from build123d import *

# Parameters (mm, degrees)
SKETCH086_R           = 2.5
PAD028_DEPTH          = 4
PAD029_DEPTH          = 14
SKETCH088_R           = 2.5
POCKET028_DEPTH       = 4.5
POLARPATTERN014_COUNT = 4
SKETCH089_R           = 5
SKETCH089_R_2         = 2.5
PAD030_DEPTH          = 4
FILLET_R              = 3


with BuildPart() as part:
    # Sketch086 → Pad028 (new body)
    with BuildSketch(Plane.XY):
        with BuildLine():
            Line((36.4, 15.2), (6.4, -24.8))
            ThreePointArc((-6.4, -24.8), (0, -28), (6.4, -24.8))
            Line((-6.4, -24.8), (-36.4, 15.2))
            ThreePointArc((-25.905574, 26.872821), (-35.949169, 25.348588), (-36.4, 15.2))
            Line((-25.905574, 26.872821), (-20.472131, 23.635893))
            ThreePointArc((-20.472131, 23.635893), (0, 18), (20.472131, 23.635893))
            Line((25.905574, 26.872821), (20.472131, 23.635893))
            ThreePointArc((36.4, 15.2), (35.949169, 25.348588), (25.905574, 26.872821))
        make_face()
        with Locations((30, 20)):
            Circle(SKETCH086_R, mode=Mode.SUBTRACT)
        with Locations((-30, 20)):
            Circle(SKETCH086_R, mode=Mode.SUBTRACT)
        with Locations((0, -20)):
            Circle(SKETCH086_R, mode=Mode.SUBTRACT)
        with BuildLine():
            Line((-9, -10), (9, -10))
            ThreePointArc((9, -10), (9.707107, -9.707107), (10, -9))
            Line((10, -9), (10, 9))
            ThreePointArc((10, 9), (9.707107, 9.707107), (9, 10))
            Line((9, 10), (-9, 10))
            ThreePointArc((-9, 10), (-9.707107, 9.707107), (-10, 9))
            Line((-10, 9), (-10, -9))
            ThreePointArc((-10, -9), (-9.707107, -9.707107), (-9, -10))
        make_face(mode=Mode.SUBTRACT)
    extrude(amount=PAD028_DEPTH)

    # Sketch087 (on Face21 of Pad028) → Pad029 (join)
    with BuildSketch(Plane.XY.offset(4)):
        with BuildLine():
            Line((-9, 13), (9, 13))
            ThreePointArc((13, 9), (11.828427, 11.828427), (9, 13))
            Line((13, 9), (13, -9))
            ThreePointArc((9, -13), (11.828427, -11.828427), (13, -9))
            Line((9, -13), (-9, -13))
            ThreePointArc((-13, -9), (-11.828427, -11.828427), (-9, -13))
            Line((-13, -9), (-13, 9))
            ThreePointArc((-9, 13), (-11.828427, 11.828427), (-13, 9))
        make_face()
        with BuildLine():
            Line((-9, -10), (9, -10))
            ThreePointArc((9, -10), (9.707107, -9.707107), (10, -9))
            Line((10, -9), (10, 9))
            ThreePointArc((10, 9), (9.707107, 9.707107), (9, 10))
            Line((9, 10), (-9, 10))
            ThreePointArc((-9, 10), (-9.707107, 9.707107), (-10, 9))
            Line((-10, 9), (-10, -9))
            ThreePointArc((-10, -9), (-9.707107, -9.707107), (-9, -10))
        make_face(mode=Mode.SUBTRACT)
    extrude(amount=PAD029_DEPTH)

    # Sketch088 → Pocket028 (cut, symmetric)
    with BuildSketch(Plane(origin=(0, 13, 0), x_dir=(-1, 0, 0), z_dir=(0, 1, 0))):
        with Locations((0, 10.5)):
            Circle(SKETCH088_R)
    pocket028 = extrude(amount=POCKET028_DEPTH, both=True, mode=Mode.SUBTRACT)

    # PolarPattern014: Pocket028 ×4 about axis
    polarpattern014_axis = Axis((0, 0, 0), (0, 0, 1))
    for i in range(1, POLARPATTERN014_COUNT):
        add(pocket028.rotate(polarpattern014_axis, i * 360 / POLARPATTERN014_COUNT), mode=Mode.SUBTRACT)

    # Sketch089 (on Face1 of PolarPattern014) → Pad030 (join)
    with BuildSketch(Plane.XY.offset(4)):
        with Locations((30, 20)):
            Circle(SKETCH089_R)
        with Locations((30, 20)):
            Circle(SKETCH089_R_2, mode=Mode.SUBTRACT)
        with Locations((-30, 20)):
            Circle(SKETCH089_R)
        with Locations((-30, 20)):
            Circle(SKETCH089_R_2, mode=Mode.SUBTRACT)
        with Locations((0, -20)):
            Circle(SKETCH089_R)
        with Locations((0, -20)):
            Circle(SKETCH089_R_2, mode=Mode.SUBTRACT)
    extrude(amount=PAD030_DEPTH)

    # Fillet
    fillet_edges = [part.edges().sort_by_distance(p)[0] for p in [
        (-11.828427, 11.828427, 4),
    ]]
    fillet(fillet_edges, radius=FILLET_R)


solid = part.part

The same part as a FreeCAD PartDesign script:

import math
import FreeCAD as App
import Part
import Sketcher
Q = App.Units.Quantity


def edges_at(feature, points):
    """Names of the edges that pass closest to the given points."""
    edges = feature.Shape.Edges
    near = lambda p: min(range(len(edges)), key=lambda i: edges[i].distToShape(Part.Vertex(*p))[0])
    return sorted({f"Edge{near(p) + 1}" for p in points})

doc = App.newDocument("Part")
body = doc.addObject("PartDesign::Body", "Body")

# Sketch on XY plane
sketch1 = body.newObject("Sketcher::SketchObject", "Sketch")
sketch1.AttachmentSupport = (doc.getObject("XY_Plane"), [""])
sketch1.MapMode = "FlatFace"
sketch1.addGeometry([
    Part.LineSegment(App.Vector(6.4, -24.8, 0), App.Vector(36.4, 15.2, 0)),  # 0
    Part.ArcOfCircle(Part.Circle(App.Vector(30.000001, 20, 0), App.Vector(0, 0, 1), 8), math.radians(-36.869902), math.radians(120.784025)),  # 1
    Part.LineSegment(App.Vector(25.905574, 26.872821, 0), App.Vector(20.472131, 23.635893, 0)),  # 2
    Part.ArcOfCircle(Part.Circle(App.Vector(0, 58, 0), App.Vector(0, 0, 1), 40), math.radians(-120.78402), math.radians(-59.21598)),  # 3
    Part.LineSegment(App.Vector(-20.472131, 23.635893, 0), App.Vector(-25.905574, 26.872821, 0)),  # 4
    Part.ArcOfCircle(Part.Circle(App.Vector(-30.000001, 20, 0), App.Vector(0, 0, 1), 8), math.radians(59.215975), math.radians(216.869902)),  # 5
    Part.LineSegment(App.Vector(-36.4, 15.2, 0), App.Vector(-6.4, -24.8, 0)),  # 6
    Part.ArcOfCircle(Part.Circle(App.Vector(0, -20, 0), App.Vector(0, 0, 1), 8), math.radians(-143.130102), math.radians(-36.869898)),  # 7
    Part.Circle(App.Vector(0, -20, 0), App.Vector(0, 0, 1), 2.5),  # 8
    Part.Circle(App.Vector(30, 20, 0), App.Vector(0, 0, 1), 2.5),  # 9
    Part.ArcOfCircle(Part.Circle(App.Vector(-9.000001, -9.000001, 0), App.Vector(0, 0, 1), 0.999999), math.radians(179.999957), math.radians(270.000043)),  # 10
    Part.LineSegment(App.Vector(-10, -9, 0), App.Vector(-10, 9, 0)),  # 11
    Part.ArcOfCircle(Part.Circle(App.Vector(-9.000001, 9.000001, 0), App.Vector(0, 0, 1), 0.999999), math.radians(89.999957), math.radians(180.000043)),  # 12
    Part.LineSegment(App.Vector(-9, 10, 0), App.Vector(9, 10, 0)),  # 13
    Part.ArcOfCircle(Part.Circle(App.Vector(9.000001, 9.000001, 0), App.Vector(0, 0, 1), 0.999999), math.radians(-0.000043), math.radians(90.000043)),  # 14
    Part.LineSegment(App.Vector(10, 9, 0), App.Vector(10, -9, 0)),  # 15
    Part.ArcOfCircle(Part.Circle(App.Vector(9.000001, -9.000001, 0), App.Vector(0, 0, 1), 0.999999), math.radians(-90.000043), math.radians(0.000043)),  # 16
    Part.LineSegment(App.Vector(9, -10, 0), App.Vector(-9, -10, 0)),  # 17
    Part.Circle(App.Vector(-30, 20, 0), App.Vector(0, 0, 1), 2.5),  # 18
], False)
sketch1.addConstraint([
    Sketcher.Constraint("Tangent", 0, 2, 1, 1),
    Sketcher.Constraint("Tangent", 1, 2, 2, 1),
    Sketcher.Constraint("Tangent", 2, 2, 3, 2),
    Sketcher.Constraint("Tangent", 3, 1, 4, 1),
    Sketcher.Constraint("Tangent", 4, 2, 5, 1),
    Sketcher.Constraint("Tangent", 5, 2, 6, 1),
    Sketcher.Constraint("Tangent", 6, 2, 7, 1),
    Sketcher.Constraint("Tangent", 7, 2, 0, 1),
    Sketcher.Constraint("Tangent", 10, 1, 11, 1),
    Sketcher.Constraint("Tangent", 11, 2, 12, 2),
    Sketcher.Constraint("Tangent", 12, 1, 13, 1),
    Sketcher.Constraint("Tangent", 13, 2, 14, 2),
    Sketcher.Constraint("Tangent", 14, 1, 15, 1),
    Sketcher.Constraint("Tangent", 15, 2, 16, 2),
    Sketcher.Constraint("Tangent", 16, 1, 17, 1),
    Sketcher.Constraint("Tangent", 17, 2, 10, 2),
    Sketcher.Constraint("Vertical", 11),
    Sketcher.Constraint("Horizontal", 13),
    Sketcher.Constraint("Vertical", 15),
    Sketcher.Constraint("Horizontal", 17),
    Sketcher.Constraint("Coincident", 8, 3, 7, 3),
    Sketcher.Constraint("Coincident", 9, 3, 1, 3),
    Sketcher.Constraint("Coincident", 18, 3, 5, 3),
    Sketcher.Constraint("Equal", 1, 5),
    Sketcher.Constraint("Equal", 5, 7),
    Sketcher.Constraint("Equal", 8, 9),
    Sketcher.Constraint("Equal", 10, 12),
    Sketcher.Constraint("Equal", 12, 14),
    Sketcher.Constraint("Equal", 14, 16),
    Sketcher.Constraint("Equal", 9, 18),
    Sketcher.Constraint("Symmetric", 10, 3, 14, 3, -1, 1),
    Sketcher.Constraint("Symmetric", 1, 3, 5, 3, -2),
    Sketcher.Constraint("PointOnObject", 3, 3, -2),
    Sketcher.Constraint("PointOnObject", 7, 3, -2),
    Sketcher.Constraint("Equal", 17, 11),
    Sketcher.Constraint("Diameter", 8, Q("5 mm")),
    Sketcher.Constraint("Radius", 1, Q("8 mm")),
    Sketcher.Constraint("Radius", 3, Q("40 mm")),
    Sketcher.Constraint("Radius", 10, Q("0.999999 mm")),
    Sketcher.Constraint("DistanceX", 13, 1, 13, 2, Q("18 mm")),
    Sketcher.Constraint("Distance", 0, Q("50 mm")),
    Sketcher.Constraint("DistanceX", -1, 1, 1, 3, Q("30.000001 mm")),
    Sketcher.Constraint("DistanceY", -1, 1, 1, 3, Q("20 mm")),
    Sketcher.Constraint("DistanceY", -1, 1, 3, 3, Q("58 mm")),
])
pad1 = body.newObject("PartDesign::Pad", "Pad")
pad1.Profile = sketch1
pad1.Length = 4

# Sketch on XY plane
sketch2 = body.newObject("Sketcher::SketchObject", "Sketch001")
sketch2.AttachmentSupport = (doc.getObject("XY_Plane"), [""])
sketch2.MapMode = "FlatFace"
sketch2.AttachmentOffset = App.Placement(App.Vector(0, 0, 4), App.Rotation())
sketch2.addGeometry([
    Part.LineSegment(App.Vector(9, 13, 0), App.Vector(-9, 13, 0)),  # 0
    Part.ArcOfCircle(Part.Circle(App.Vector(-9, 9, 0), App.Vector(0, 0, 1), 4), math.radians(90.000006), math.radians(179.999994)),  # 1
    Part.LineSegment(App.Vector(-13, 9, 0), App.Vector(-13, -9, 0)),  # 2
    Part.ArcOfCircle(Part.Circle(App.Vector(-9, -9, 0), App.Vector(0, 0, 1), 4), math.radians(-179.999994), math.radians(-90.000006)),  # 3
    Part.LineSegment(App.Vector(-9, -13, 0), App.Vector(9, -13, 0)),  # 4
    Part.ArcOfCircle(Part.Circle(App.Vector(9, -9, 0), App.Vector(0, 0, 1), 4), math.radians(-89.999994), math.radians(-0.000006)),  # 5
    Part.LineSegment(App.Vector(13, -9, 0), App.Vector(13, 9, 0)),  # 6
    Part.ArcOfCircle(Part.Circle(App.Vector(9, 9, 0), App.Vector(0, 0, 1), 4), math.radians(0.000006), math.radians(89.999994)),  # 7
    Part.ArcOfCircle(Part.Circle(App.Vector(-9.000001, -9.000001, 0), App.Vector(0, 0, 1), 0.999999), math.radians(179.999957), math.radians(270.000043)),  # 8
    Part.LineSegment(App.Vector(-10, -9, 0), App.Vector(-10, 9, 0)),  # 9
    Part.ArcOfCircle(Part.Circle(App.Vector(-9.000001, 9.000001, 0), App.Vector(0, 0, 1), 0.999999), math.radians(89.999957), math.radians(180.000043)),  # 10
    Part.LineSegment(App.Vector(-9, 10, 0), App.Vector(9, 10, 0)),  # 11
    Part.ArcOfCircle(Part.Circle(App.Vector(9.000001, 9.000001, 0), App.Vector(0, 0, 1), 0.999999), math.radians(-0.000043), math.radians(90.000043)),  # 12
    Part.LineSegment(App.Vector(10, 9, 0), App.Vector(10, -9, 0)),  # 13
    Part.ArcOfCircle(Part.Circle(App.Vector(9.000001, -9.000001, 0), App.Vector(0, 0, 1), 0.999999), math.radians(-90.000043), math.radians(0.000043)),  # 14
    Part.LineSegment(App.Vector(9, -10, 0), App.Vector(-9, -10, 0)),  # 15
], False)
sketch2.addConstraint([
    Sketcher.Constraint("Tangent", 0, 2, 1, 1),
    Sketcher.Constraint("Tangent", 1, 2, 2, 1),
    Sketcher.Constraint("Tangent", 2, 2, 3, 1),
    Sketcher.Constraint("Tangent", 3, 2, 4, 1),
    Sketcher.Constraint("Tangent", 4, 2, 5, 1),
    Sketcher.Constraint("Tangent", 5, 2, 6, 1),
    Sketcher.Constraint("Tangent", 6, 2, 7, 1),
    Sketcher.Constraint("Tangent", 7, 2, 0, 1),
    Sketcher.Constraint("Tangent", 8, 1, 9, 1),
    Sketcher.Constraint("Tangent", 9, 2, 10, 2),
    Sketcher.Constraint("Tangent", 10, 1, 11, 1),
    Sketcher.Constraint("Tangent", 11, 2, 12, 2),
    Sketcher.Constraint("Tangent", 12, 1, 13, 1),
    Sketcher.Constraint("Tangent", 13, 2, 14, 2),
    Sketcher.Constraint("Tangent", 14, 1, 15, 1),
    Sketcher.Constraint("Tangent", 15, 2, 8, 2),
    Sketcher.Constraint("Horizontal", 0),
    Sketcher.Constraint("Vertical", 2),
    Sketcher.Constraint("Horizontal", 4),
    Sketcher.Constraint("Vertical", 6),
    Sketcher.Constraint("Vertical", 9),
    Sketcher.Constraint("Horizontal", 11),
    Sketcher.Constraint("Vertical", 13),
    Sketcher.Constraint("Horizontal", 15),
    Sketcher.Constraint("Coincident", 8, 3, 3, 3),
    Sketcher.Constraint("Coincident", 10, 3, 1, 3),
    Sketcher.Constraint("Coincident", 12, 3, 7, 3),
    Sketcher.Constraint("Equal", 1, 3),
    Sketcher.Constraint("Equal", 3, 5),
    Sketcher.Constraint("Equal", 5, 7),
    Sketcher.Constraint("Equal", 12, 14),
    Sketcher.Constraint("Symmetric", 1, 3, 5, 3, -1, 1),
    Sketcher.Constraint("Equal", 15, 2),
    Sketcher.Constraint("Radius", 1, Q("4 mm")),
    Sketcher.Constraint("Radius", 8, Q("0.999999 mm")),
    Sketcher.Constraint("DistanceX", 0, 2, 0, 1, Q("18 mm")),
])
pad2 = body.newObject("PartDesign::Pad", "Pad001")
pad2.Profile = sketch2
pad2.Length = 14

# Sketch on XZ plane
sketch3 = body.newObject("Sketcher::SketchObject", "Sketch002")
sketch3.AttachmentSupport = (doc.getObject("XZ_Plane"), [""])
sketch3.MapMode = "FlatFace"
sketch3.AttachmentOffset = App.Placement(App.Vector(0, 0, -13), App.Rotation())
sketch3.addGeometry(Part.Circle(App.Vector(0, 10.5, 0), App.Vector(0, 0, 1), 2.5), False)
sketch3.addConstraint([
    Sketcher.Constraint("PointOnObject", 0, 3, -2),
    Sketcher.Constraint("Diameter", 0, Q("5 mm")),
    Sketcher.Constraint("DistanceY", -1, 1, 0, 3, Q("10.5 mm")),
])
pocket1 = body.newObject("PartDesign::Pocket", "Pocket")
pocket1.Profile = sketch3
pocket1.Length = 9
pocket1.Midplane = True
doc.recompute()

polarpattern = body.newObject("PartDesign::PolarPattern", "PolarPattern")
polarpattern.Originals = [pocket1]
polarpattern.Axis = (doc.getObject("Z_Axis"), [""])
polarpattern.Angle = 360
polarpattern.Occurrences = 4
body.Tip = polarpattern

# Sketch on XY plane
sketch4 = body.newObject("Sketcher::SketchObject", "Sketch003")
sketch4.AttachmentSupport = (doc.getObject("XY_Plane"), [""])
sketch4.MapMode = "FlatFace"
sketch4.AttachmentOffset = App.Placement(App.Vector(0, 0, 4), App.Rotation())
sketch4.addGeometry([
    Part.Circle(App.Vector(30, 20, 0), App.Vector(0, 0, 1), 5),  # 0
    Part.Circle(App.Vector(30, 20, 0), App.Vector(0, 0, 1), 2.5),  # 1
    Part.Circle(App.Vector(-30, 20, 0), App.Vector(0, 0, 1), 5),  # 2
    Part.Circle(App.Vector(-30, 20, 0), App.Vector(0, 0, 1), 2.5),  # 3
    Part.Circle(App.Vector(0, -20, 0), App.Vector(0, 0, 1), 5),  # 4
    Part.Circle(App.Vector(0, -20, 0), App.Vector(0, 0, 1), 2.5),  # 5
], False)
sketch4.addConstraint([
    Sketcher.Constraint("Coincident", 1, 3, 0, 3),
    Sketcher.Constraint("Coincident", 3, 3, 2, 3),
    Sketcher.Constraint("Coincident", 5, 3, 4, 3),
    Sketcher.Constraint("Equal", 0, 2),
    Sketcher.Constraint("Equal", 1, 3),
    Sketcher.Constraint("Equal", 2, 4),
    Sketcher.Constraint("Equal", 3, 5),
    Sketcher.Constraint("Symmetric", 0, 3, 2, 3, -2),
    Sketcher.Constraint("PointOnObject", 4, 3, -2),
    Sketcher.Constraint("Diameter", 0, Q("10 mm")),
    Sketcher.Constraint("Diameter", 1, Q("5 mm")),
    Sketcher.Constraint("DistanceX", -1, 1, 0, 3, Q("30 mm")),
    Sketcher.Constraint("DistanceY", -1, 1, 0, 3, Q("20 mm")),
    Sketcher.Constraint("DistanceY", 4, 3, -1, 1, Q("20 mm")),
])
pad3 = body.newObject("PartDesign::Pad", "Pad002")
pad3.Profile = sketch4
pad3.Length = 4
doc.recompute()

fillet = body.newObject("PartDesign::Fillet", "Fillet")
fillet.Base = (pad3, edges_at(pad3, [(-11.828, 11.828, 4)]))
fillet.Radius = 3

doc.recompute()
